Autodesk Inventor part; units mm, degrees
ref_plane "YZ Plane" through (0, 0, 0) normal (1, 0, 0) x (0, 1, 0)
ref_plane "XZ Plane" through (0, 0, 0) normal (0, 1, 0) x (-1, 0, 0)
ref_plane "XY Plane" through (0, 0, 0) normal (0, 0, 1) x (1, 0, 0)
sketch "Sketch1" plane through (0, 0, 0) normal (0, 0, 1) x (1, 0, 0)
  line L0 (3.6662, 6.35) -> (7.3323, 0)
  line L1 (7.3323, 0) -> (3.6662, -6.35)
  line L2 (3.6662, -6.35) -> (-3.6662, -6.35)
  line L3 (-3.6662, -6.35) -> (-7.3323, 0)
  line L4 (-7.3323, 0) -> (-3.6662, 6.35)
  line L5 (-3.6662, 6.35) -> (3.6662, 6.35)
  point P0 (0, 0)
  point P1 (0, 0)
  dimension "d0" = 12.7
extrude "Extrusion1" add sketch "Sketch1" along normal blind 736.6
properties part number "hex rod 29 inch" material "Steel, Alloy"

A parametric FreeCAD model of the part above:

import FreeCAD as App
import Part
import Sketcher
Q = App.Units.Quantity

doc = App.newDocument("Part")
params = doc.addObject("Spreadsheet::Sheet", "Params")
for row, (alias, value) in enumerate([
    ("pad1_length", "29 in"),
], start=1):
    params.set(f"A{row}", alias)
    params.set(f"B{row}", "=" + value)
    params.setAlias(f"B{row}", alias)

body = doc.addObject("PartDesign::Body", "Body")

# Sketch on XY plane
sketch1 = body.newObject("Sketcher::SketchObject", "Sketch")
sketch1.AttachmentSupport = (doc.getObject("XY_Plane"), [""])
sketch1.MapMode = "FlatFace"
sketch1.addGeometry([
    Part.LineSegment(App.Vector(7, 0, 0), App.Vector(4, 6, 0)),  # 0
    Part.LineSegment(App.Vector(4, 6, 0), App.Vector(-4, 6, 0)),  # 1
    Part.LineSegment(App.Vector(-4, 6, 0), App.Vector(-7, 0, 0)),  # 2
    Part.LineSegment(App.Vector(-7, 0, 0), App.Vector(-4, -6, 0)),  # 3
    Part.LineSegment(App.Vector(-4, -6, 0), App.Vector(4, -6, 0)),  # 4
    Part.LineSegment(App.Vector(4, -6, 0), App.Vector(7, 0, 0)),  # 5
], False)
sketch1.addConstraint([
    Sketcher.Constraint("Coincident", 0, 2, 1, 1),
    Sketcher.Constraint("Coincident", 1, 2, 2, 1),
    Sketcher.Constraint("Coincident", 2, 2, 3, 1),
    Sketcher.Constraint("Coincident", 3, 2, 4, 1),
    Sketcher.Constraint("Coincident", 4, 2, 5, 1),
    Sketcher.Constraint("Coincident", 5, 2, 0, 1),
    Sketcher.Constraint("Horizontal", 1),
    Sketcher.Constraint("Horizontal", 4),
    Sketcher.Constraint("Symmetric", 0, 2, 3, 2, -1, 1),
    Sketcher.Constraint("Symmetric", 2, 2, 5, 2, -1, 1),
    Sketcher.Constraint("PointOnObject", 2, 2, -1),
    Sketcher.Constraint("Parallel", 2, 5),
    Sketcher.Constraint("Vertical", 1, 2, 3, 2),
    Sketcher.Constraint("DistanceY", 3, 2, 1, 2, Q("0.5 in")),
    Sketcher.Constraint("Angle", 0, Q("119.9995 deg")),
    Sketcher.Constraint("DistanceX", 2, 2, 0, 2, Q("0.433 in")),
])
pad1 = body.newObject("PartDesign::Pad", "Pad")
pad1.Profile = sketch1
pad1.setExpression("Length", "Params.pad1_length")

doc.recompute()
